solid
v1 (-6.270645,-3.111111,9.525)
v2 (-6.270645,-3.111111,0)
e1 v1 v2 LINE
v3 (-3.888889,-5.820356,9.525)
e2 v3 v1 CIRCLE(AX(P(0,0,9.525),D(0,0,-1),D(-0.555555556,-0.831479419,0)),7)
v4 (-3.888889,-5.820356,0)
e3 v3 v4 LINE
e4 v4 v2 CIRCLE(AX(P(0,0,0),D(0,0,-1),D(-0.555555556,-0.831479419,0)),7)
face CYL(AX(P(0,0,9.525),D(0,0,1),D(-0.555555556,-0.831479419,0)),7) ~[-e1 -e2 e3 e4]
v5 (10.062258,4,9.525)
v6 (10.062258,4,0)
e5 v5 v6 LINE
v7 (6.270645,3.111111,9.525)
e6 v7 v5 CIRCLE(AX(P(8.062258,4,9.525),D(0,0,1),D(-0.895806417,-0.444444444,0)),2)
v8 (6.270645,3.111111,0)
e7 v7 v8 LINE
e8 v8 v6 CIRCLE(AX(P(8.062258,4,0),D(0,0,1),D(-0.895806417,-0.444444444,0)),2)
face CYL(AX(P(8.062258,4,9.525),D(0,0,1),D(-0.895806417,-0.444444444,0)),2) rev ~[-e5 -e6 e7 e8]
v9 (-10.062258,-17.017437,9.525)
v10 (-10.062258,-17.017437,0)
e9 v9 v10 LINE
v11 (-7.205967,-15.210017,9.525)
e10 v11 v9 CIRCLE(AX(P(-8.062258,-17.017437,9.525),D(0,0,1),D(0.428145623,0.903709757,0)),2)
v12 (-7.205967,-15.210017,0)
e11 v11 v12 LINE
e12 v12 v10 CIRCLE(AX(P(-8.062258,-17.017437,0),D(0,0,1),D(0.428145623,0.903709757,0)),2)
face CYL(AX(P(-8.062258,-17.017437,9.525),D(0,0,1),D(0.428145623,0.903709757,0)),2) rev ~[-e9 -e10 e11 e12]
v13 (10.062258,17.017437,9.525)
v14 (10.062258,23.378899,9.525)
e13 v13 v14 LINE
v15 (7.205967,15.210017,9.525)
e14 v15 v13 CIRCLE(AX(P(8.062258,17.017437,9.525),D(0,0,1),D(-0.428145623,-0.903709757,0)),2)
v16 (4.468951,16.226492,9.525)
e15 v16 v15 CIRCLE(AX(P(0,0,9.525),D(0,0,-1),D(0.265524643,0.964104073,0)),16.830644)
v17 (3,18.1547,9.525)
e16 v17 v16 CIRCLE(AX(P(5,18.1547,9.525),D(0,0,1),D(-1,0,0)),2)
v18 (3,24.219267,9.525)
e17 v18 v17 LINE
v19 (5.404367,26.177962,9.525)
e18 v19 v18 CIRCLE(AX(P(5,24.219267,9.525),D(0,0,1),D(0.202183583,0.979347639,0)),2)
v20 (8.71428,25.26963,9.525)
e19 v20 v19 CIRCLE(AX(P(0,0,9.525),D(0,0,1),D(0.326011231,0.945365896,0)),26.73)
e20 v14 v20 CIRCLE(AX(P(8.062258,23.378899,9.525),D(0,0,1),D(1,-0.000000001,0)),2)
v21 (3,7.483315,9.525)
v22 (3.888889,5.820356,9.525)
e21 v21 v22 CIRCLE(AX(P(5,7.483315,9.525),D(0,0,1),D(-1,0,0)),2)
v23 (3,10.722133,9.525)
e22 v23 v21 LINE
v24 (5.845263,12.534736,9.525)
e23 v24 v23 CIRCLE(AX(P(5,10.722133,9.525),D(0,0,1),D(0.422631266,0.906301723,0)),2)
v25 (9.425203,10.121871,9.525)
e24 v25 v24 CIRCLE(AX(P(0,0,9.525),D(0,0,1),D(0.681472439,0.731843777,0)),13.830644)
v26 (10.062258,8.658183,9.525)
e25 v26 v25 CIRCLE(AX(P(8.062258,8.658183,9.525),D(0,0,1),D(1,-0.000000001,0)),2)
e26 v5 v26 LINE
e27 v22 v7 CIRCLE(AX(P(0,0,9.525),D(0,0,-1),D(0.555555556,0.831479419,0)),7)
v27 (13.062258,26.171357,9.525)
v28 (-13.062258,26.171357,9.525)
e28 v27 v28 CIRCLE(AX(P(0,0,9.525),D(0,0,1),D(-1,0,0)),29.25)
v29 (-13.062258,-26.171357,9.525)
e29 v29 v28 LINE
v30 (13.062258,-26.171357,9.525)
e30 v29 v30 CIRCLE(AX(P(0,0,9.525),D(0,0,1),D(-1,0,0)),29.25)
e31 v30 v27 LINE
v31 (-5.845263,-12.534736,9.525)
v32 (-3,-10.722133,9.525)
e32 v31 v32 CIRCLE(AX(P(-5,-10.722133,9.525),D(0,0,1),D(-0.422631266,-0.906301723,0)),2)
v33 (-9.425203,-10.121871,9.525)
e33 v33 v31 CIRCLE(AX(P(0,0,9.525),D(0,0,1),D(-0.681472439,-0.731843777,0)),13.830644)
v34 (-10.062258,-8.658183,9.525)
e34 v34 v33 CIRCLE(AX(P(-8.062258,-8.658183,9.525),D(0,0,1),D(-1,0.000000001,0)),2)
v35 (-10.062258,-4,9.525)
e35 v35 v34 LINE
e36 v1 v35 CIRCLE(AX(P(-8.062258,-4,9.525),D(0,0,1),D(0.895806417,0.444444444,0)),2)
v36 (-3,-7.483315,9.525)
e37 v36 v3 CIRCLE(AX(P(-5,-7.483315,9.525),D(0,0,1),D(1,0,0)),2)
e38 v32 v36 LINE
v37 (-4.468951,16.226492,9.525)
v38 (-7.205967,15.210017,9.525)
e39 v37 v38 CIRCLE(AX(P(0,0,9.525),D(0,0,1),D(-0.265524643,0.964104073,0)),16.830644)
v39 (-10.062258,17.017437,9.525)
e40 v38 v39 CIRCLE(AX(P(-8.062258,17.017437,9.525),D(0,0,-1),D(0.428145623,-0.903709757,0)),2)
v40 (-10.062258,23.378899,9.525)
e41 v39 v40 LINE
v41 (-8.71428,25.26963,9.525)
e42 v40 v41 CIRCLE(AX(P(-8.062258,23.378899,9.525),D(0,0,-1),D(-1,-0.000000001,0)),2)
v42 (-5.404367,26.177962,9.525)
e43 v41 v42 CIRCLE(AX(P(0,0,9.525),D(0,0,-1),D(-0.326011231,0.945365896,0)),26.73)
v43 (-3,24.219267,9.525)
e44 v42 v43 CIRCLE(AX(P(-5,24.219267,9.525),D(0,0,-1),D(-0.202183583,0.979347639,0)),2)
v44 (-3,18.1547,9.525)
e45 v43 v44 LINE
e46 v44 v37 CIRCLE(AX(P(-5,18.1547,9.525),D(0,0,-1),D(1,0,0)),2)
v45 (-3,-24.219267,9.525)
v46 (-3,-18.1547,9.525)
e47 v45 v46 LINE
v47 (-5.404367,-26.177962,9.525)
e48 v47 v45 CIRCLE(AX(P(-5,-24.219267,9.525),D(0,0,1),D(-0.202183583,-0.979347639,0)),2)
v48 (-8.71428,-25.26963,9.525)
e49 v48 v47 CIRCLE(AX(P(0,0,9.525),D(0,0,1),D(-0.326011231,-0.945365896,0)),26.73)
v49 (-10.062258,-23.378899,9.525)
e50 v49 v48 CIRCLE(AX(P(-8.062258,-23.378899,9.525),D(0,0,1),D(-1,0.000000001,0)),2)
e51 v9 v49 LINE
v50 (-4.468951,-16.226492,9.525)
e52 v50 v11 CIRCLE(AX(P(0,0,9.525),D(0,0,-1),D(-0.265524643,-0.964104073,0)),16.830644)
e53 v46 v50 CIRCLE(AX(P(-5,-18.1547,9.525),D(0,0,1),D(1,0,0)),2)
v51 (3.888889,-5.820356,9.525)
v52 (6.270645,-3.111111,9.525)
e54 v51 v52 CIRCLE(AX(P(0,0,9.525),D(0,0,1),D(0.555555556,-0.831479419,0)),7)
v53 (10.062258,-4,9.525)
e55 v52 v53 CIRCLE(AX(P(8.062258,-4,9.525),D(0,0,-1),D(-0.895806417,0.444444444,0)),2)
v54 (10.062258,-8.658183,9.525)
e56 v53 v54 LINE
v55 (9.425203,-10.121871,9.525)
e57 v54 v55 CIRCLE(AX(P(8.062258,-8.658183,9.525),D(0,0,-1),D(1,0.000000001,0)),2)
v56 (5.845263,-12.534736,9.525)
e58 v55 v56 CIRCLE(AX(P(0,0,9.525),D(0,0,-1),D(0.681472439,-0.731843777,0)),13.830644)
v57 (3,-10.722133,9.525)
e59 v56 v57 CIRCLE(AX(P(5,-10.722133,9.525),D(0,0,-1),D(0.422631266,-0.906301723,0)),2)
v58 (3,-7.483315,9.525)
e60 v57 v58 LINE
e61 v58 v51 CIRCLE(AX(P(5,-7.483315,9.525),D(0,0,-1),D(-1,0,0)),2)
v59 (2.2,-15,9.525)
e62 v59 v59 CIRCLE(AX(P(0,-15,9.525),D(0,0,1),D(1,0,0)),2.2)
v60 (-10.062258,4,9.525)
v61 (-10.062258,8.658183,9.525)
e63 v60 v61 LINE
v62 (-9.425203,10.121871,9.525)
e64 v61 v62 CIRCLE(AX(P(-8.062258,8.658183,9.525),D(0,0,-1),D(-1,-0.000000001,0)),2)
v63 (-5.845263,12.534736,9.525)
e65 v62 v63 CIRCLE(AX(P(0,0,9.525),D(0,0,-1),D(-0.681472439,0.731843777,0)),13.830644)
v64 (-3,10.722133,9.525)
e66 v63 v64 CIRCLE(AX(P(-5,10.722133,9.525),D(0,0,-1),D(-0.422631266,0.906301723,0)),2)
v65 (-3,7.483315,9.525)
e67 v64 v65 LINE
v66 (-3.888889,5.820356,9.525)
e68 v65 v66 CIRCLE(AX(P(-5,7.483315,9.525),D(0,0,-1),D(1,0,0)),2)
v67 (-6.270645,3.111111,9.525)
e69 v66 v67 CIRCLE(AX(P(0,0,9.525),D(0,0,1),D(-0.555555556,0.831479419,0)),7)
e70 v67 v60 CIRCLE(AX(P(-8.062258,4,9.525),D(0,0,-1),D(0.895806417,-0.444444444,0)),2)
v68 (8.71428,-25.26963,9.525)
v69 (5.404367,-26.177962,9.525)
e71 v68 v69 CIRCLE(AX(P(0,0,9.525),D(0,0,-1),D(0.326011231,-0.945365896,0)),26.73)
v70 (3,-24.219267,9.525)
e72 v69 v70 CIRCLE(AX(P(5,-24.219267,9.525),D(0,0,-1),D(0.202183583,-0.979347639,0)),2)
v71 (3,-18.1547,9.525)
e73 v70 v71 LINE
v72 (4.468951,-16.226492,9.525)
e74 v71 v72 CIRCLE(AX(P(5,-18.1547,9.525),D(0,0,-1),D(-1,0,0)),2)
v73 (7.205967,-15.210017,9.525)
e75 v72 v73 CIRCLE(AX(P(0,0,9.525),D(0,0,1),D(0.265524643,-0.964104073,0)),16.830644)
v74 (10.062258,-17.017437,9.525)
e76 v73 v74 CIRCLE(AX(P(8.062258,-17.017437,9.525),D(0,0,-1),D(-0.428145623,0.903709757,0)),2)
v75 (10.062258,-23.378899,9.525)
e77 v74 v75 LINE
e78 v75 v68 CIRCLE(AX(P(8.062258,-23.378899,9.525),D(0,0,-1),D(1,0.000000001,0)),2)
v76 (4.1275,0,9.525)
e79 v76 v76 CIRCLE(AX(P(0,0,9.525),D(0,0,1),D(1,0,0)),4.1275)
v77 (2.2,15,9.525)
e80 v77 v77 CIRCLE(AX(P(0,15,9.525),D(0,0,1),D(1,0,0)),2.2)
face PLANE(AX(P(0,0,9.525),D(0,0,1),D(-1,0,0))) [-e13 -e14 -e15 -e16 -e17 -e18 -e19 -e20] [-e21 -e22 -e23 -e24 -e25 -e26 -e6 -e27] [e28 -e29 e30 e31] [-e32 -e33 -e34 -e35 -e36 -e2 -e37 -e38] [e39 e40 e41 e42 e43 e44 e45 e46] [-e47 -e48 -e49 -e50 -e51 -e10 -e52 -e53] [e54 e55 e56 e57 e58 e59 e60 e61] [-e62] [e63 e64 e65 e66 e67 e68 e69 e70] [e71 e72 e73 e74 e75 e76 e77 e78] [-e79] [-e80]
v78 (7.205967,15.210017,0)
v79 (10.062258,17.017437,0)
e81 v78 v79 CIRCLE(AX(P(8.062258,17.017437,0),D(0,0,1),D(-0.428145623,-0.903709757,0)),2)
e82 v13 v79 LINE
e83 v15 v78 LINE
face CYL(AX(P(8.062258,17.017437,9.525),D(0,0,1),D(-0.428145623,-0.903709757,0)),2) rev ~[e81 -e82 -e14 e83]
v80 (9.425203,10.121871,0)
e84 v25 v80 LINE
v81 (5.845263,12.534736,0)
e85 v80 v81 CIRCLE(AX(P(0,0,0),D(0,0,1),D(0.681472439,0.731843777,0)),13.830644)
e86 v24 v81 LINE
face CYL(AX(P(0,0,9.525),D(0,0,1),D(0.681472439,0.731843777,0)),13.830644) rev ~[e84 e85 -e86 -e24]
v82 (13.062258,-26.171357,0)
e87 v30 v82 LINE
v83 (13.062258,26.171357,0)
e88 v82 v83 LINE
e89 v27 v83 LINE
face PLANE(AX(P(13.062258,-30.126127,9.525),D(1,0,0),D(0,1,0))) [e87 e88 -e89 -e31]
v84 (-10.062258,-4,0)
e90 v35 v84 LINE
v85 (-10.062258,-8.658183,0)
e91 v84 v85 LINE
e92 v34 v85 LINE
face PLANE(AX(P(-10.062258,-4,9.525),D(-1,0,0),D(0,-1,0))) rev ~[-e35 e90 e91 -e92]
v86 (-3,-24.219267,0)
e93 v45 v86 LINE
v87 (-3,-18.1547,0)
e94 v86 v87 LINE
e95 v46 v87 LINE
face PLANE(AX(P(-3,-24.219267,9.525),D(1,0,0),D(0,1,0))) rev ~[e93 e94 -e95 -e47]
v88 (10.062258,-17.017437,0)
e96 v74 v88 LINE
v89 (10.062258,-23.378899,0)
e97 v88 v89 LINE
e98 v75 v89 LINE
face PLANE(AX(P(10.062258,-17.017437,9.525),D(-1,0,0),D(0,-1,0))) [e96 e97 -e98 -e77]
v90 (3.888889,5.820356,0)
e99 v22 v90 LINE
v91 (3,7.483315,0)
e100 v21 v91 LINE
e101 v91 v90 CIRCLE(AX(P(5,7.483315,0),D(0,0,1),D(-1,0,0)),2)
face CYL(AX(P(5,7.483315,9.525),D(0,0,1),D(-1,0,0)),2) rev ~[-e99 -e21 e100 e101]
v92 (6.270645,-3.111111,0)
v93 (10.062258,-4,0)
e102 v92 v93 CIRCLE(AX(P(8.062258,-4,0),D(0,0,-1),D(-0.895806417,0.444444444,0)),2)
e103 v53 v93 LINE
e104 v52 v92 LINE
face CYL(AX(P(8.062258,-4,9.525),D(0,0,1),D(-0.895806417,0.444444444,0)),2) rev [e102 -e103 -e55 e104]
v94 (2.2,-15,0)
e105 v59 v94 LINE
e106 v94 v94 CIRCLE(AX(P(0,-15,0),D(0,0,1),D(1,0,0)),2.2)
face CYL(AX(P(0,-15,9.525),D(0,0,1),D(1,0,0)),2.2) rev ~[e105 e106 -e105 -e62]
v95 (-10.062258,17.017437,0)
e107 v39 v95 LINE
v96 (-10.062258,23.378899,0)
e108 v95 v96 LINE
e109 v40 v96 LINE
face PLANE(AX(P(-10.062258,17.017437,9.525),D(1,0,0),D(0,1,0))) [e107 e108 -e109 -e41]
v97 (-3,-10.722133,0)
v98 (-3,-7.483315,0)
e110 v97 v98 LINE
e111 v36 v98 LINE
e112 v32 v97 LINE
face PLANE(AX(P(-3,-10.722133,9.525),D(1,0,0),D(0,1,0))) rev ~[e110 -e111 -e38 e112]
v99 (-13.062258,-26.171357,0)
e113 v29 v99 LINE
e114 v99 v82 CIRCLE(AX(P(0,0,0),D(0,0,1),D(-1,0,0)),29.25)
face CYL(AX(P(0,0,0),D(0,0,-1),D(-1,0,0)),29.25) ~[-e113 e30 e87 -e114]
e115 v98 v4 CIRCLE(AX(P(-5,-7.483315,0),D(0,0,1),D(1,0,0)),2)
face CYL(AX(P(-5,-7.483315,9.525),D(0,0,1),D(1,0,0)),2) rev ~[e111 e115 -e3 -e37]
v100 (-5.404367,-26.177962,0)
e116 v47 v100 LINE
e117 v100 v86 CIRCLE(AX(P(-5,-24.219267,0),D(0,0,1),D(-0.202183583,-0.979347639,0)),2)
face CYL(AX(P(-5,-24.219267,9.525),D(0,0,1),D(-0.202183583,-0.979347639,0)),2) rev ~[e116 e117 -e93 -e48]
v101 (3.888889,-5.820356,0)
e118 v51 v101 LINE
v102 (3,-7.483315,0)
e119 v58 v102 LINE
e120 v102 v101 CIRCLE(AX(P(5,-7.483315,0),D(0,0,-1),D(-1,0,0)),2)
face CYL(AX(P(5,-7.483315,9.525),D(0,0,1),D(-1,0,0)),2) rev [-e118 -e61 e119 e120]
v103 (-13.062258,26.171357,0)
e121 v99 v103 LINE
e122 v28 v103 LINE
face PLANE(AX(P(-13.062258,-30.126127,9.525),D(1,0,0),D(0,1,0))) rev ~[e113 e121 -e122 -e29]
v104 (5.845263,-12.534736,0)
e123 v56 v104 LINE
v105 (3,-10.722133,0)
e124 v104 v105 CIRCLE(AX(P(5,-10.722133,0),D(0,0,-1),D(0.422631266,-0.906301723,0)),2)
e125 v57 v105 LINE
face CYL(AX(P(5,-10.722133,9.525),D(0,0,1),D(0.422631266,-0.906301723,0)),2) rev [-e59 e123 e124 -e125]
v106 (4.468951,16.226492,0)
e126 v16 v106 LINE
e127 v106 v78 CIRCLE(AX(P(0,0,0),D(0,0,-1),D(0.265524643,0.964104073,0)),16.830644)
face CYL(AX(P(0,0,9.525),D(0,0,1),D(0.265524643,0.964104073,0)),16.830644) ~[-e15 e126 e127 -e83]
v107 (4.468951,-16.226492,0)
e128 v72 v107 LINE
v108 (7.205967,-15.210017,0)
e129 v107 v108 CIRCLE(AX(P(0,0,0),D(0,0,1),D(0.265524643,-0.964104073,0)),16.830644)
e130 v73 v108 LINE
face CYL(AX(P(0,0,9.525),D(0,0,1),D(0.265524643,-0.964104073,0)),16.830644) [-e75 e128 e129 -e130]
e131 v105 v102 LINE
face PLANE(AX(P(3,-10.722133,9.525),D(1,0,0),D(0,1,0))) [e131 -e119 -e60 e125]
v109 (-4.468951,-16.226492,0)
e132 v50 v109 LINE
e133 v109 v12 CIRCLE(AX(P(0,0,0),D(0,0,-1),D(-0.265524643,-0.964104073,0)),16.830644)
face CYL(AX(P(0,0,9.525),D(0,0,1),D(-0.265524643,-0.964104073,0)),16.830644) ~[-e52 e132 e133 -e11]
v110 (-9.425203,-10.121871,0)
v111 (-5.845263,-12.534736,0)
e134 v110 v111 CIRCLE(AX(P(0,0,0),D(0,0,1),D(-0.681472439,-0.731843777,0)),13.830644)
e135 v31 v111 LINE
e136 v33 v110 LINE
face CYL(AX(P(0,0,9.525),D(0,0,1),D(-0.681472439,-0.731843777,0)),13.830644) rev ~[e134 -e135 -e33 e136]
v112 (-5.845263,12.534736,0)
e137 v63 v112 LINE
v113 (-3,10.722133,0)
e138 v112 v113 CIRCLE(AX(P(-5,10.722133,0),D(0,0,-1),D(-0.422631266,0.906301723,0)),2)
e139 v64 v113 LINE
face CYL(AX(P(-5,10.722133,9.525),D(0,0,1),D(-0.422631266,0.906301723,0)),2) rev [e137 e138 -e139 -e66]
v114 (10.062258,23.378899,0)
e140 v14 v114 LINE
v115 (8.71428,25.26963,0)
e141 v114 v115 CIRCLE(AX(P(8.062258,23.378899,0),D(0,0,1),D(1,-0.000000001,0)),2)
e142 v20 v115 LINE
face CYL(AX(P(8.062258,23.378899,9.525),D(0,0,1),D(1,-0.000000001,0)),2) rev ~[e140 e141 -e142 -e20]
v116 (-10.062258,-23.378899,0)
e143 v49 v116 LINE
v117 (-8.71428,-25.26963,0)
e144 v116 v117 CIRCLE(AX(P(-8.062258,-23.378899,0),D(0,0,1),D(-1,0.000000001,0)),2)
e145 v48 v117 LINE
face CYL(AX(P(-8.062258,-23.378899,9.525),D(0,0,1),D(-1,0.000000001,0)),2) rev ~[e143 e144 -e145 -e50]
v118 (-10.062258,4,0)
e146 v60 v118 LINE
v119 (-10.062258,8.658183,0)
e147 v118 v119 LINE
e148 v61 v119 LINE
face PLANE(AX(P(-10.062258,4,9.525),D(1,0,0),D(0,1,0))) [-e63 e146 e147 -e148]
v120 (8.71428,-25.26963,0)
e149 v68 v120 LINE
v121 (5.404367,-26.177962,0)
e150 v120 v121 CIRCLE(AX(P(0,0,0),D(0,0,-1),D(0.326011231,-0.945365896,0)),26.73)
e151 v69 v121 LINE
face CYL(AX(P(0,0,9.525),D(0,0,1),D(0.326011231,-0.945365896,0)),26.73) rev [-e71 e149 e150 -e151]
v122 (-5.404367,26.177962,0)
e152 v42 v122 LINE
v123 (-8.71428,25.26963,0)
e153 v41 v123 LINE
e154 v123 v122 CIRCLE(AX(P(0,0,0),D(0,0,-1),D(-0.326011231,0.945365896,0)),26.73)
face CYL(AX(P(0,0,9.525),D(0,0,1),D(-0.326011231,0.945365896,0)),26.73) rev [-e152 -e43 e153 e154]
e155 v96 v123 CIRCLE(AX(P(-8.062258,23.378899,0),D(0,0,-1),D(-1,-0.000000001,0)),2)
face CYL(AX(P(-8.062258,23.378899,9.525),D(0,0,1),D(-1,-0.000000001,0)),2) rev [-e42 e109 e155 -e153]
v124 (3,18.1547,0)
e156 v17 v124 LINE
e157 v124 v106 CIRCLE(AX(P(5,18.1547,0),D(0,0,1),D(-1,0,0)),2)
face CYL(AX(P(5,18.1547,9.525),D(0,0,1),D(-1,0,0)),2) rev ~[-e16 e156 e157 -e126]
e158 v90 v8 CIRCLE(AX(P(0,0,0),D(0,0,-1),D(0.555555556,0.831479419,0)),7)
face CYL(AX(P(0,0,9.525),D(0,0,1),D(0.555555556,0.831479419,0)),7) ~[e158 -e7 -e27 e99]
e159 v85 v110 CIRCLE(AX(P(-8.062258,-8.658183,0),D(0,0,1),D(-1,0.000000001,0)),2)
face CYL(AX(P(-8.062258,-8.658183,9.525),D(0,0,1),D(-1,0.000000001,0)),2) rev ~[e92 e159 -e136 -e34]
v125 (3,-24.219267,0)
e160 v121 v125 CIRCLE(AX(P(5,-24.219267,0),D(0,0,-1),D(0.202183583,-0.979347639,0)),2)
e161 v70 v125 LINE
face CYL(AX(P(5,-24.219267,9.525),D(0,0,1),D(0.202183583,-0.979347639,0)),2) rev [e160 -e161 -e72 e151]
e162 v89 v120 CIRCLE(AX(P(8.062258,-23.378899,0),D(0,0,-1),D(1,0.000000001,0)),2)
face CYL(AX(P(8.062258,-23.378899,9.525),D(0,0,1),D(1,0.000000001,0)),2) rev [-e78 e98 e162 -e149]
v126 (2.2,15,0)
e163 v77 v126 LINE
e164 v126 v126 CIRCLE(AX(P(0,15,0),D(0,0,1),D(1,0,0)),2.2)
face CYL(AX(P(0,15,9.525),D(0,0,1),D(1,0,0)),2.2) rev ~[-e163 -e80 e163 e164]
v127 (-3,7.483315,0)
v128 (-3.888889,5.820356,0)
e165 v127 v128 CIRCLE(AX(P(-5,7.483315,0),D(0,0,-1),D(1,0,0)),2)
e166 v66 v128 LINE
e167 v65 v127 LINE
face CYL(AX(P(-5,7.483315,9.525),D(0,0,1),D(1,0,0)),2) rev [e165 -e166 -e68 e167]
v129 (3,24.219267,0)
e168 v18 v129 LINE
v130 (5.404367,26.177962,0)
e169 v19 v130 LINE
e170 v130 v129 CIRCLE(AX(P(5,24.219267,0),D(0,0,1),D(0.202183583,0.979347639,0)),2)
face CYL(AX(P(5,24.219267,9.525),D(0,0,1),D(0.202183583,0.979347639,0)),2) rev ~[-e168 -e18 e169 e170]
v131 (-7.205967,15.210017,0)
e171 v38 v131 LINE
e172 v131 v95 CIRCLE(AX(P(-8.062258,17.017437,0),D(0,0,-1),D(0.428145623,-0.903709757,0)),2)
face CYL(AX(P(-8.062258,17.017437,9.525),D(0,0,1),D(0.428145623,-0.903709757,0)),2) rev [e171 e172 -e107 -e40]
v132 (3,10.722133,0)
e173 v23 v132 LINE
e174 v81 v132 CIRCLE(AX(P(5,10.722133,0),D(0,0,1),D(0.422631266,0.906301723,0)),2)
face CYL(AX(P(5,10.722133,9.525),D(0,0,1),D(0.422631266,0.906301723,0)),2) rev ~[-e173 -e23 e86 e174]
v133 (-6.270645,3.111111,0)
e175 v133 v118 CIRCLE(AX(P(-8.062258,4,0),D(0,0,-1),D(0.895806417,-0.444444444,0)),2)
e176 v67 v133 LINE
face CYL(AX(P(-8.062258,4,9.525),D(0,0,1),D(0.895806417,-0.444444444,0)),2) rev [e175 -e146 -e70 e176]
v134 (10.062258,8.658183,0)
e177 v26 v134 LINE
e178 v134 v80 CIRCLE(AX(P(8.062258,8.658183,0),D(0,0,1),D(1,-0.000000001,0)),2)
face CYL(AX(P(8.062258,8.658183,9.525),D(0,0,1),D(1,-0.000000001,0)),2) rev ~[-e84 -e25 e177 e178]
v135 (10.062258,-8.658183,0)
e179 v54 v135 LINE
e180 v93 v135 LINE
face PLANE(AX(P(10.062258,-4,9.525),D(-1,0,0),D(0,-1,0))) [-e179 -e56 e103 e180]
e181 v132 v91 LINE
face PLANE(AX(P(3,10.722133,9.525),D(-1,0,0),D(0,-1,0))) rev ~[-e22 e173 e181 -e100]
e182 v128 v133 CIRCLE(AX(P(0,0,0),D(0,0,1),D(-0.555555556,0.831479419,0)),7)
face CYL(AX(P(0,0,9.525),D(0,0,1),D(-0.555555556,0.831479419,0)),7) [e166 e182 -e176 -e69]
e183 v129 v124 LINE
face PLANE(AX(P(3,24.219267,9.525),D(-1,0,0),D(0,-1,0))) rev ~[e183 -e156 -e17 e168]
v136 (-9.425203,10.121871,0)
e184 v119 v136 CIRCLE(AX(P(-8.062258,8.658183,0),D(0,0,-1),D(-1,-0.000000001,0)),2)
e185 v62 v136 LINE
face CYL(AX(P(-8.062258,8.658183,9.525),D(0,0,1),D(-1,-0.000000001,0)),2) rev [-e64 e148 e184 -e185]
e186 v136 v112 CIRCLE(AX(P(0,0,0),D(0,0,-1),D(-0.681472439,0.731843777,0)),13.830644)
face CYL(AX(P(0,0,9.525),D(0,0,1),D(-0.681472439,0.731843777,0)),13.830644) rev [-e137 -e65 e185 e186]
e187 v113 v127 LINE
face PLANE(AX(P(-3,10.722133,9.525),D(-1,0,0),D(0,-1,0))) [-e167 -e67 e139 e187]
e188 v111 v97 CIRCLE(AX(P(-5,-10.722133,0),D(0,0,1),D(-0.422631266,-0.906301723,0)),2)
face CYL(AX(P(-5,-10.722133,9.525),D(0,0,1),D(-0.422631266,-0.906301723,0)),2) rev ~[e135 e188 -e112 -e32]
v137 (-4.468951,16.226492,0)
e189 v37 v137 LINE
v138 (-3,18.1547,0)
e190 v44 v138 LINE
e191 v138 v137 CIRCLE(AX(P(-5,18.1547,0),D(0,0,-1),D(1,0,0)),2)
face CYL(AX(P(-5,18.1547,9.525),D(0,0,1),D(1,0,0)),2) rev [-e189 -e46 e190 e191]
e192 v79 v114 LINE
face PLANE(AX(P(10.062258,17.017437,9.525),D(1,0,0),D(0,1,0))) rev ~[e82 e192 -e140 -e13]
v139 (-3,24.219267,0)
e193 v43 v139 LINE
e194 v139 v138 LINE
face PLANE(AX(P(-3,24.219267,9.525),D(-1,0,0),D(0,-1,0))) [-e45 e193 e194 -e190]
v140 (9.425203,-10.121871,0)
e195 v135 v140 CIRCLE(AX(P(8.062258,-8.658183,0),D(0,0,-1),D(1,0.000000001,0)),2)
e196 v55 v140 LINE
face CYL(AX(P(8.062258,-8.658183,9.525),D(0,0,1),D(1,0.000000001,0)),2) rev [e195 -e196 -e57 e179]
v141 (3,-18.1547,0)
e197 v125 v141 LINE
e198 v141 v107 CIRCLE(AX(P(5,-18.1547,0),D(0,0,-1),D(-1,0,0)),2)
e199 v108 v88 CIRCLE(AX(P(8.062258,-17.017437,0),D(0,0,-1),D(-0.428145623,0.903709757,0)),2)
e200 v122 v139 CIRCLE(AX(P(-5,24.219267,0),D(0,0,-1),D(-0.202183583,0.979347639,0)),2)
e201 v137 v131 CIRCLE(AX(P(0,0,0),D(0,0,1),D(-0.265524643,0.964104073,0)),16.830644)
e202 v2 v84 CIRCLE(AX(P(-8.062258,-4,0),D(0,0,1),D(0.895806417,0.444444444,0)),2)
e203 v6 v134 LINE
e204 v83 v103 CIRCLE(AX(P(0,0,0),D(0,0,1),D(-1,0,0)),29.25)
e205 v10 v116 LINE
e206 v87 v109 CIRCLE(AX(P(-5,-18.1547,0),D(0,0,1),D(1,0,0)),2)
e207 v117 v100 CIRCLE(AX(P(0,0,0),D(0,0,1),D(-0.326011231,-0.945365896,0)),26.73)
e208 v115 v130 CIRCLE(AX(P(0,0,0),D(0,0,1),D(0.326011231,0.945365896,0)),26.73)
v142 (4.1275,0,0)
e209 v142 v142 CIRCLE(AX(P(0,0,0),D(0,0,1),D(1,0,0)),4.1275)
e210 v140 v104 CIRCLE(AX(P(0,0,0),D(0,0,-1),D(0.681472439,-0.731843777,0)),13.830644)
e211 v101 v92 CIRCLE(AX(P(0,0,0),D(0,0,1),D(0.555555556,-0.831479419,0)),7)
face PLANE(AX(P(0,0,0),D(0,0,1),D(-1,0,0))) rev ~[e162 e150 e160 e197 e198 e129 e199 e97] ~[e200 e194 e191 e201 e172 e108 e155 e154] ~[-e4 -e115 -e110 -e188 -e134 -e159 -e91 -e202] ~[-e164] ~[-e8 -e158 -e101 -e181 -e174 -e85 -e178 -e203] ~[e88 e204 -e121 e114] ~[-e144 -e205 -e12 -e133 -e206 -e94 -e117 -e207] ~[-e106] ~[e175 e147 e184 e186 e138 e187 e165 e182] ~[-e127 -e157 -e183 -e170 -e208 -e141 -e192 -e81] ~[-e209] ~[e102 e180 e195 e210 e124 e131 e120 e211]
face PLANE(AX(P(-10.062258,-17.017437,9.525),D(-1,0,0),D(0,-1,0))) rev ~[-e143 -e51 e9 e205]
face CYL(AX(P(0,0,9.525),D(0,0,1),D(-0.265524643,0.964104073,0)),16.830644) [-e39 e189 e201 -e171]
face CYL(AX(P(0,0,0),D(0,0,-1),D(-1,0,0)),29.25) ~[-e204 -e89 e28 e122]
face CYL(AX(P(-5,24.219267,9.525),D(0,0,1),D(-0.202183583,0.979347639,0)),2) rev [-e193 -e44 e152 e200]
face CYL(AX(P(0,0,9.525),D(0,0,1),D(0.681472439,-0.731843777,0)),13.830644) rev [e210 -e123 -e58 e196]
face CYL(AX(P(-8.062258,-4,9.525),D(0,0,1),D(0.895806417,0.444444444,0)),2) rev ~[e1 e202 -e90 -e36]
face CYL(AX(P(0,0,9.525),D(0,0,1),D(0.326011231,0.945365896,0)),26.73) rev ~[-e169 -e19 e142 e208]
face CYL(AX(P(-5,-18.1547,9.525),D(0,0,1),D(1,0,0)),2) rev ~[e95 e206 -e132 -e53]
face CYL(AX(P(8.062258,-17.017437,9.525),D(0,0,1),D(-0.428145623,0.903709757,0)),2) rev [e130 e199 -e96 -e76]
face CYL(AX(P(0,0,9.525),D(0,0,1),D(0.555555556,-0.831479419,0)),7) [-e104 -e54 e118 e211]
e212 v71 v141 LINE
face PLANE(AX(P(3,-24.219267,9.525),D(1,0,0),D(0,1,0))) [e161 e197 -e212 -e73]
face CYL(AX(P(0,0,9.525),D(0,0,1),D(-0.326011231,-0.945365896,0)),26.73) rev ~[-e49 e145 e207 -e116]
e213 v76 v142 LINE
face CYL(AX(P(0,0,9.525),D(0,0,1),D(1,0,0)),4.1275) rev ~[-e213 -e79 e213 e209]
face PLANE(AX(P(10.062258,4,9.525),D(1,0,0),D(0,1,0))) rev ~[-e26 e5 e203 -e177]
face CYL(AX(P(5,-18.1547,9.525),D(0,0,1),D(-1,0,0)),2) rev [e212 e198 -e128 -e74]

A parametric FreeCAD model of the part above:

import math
import FreeCAD as App
import Part
import Sketcher
from FreeCAD import Vector
Q = App.Units.Quantity


def add_polygon(sketch, points):
    """Adds a closed chain of lines whose ends are joined by coincident constraints."""
    first, n = sketch.GeometryCount, len(points)
    for a, b in zip(points, points[1:] + points[:1]):
        sketch.addGeometry(Part.LineSegment(App.Vector(*a, 0), App.Vector(*b, 0)), False)
    for i in range(n):
        sketch.addConstraint(Sketcher.Constraint("Coincident", first + i, 2, first + (i + 1) % n, 1))

doc = App.newDocument("Part")
body = doc.addObject("PartDesign::Body", "Body")

sketch1 = doc.addObject("Sketcher::SketchObject", "Sketch")
body.addObject(sketch1)
sketch1.AttachmentSupport = (doc.XY_Plane, [""])
sketch1.MapMode = "FlatFace"
sketch1.addGeometry(Part.Circle(Vector(0, 0, 0), Vector(0, 0, 1), 29.25), False)
sketch1.addConstraint(Sketcher.Constraint("Coincident", 0, 3, -1, 1))
sketch1.addConstraint(Sketcher.Constraint("Diameter", 0, Q("58.5 mm")))
pad1 = doc.addObject("PartDesign::Pad", "Pad")
body.addObject(pad1)
pad1.Profile = sketch1
pad1.Length = 9.525

sketch2 = doc.addObject("Sketcher::SketchObject", "Sketch001")
body.addObject(sketch2)
sketch2.AttachmentSupport = (doc.XY_Plane, [""])
sketch2.MapMode = "FlatFace"
sketch2.AttachmentOffset = App.Placement(Vector(0, 0, 9.525), App.Rotation())
sketch2.addGeometry(Part.LineSegment(Vector(-3, 18.1547, 0), Vector(-3, 24.219267, 0)), False)
sketch2.addGeometry(Part.ArcOfCircle(Part.Circle(Vector(-5, 24.219267, 0), Vector(0, 0, 1), 2), math.radians(0), math.radians(101.664678)), False)
sketch2.addGeometry(Part.ArcOfCircle(Part.Circle(Vector(0, 0, 0), Vector(0, 0, 1), 26.73), math.radians(101.664678), math.radians(109.026851)), False)
sketch2.addGeometry(Part.ArcOfCircle(Part.Circle(Vector(-8.062258, 23.378899, 0), Vector(0, 0, 1), 2), math.radians(109.026851), math.radians(180)), False)
sketch2.addGeometry(Part.LineSegment(Vector(-10.062258, 23.378899, 0), Vector(-10.062258, 17.017437, 0)), False)
sketch2.addGeometry(Part.ArcOfCircle(Part.Circle(Vector(-8.062258, 17.017437, 0), Vector(0, 0, 1), 2), math.radians(180), math.radians(295.349934)), False)
sketch2.addGeometry(Part.ArcOfCircle(Part.Circle(Vector(0, 0, 0), Vector(0, 0, 1), 16.830644), math.radians(105.39813), math.radians(115.349934)), False)
sketch2.addGeometry(Part.ArcOfCircle(Part.Circle(Vector(-5, 18.1547, 0), Vector(0, 0, 1), 2), math.radians(-74.60187), math.radians(0)), False)
sketch2.addGeometry(Part.LineSegment(Vector(-3, 7.483315, 0), Vector(-3, 10.722133, 0)), False)
sketch2.addGeometry(Part.ArcOfCircle(Part.Circle(Vector(-5, 10.722133, 0), Vector(0, 0, 1), 2), math.radians(0), math.radians(115.000822)), False)
sketch2.addGeometry(Part.ArcOfCircle(Part.Circle(Vector(0, 0, 0), Vector(0, 0, 1), 13.830644), math.radians(115.000822), math.radians(132.958812)), False)
sketch2.addGeometry(Part.ArcOfCircle(Part.Circle(Vector(-8.062258, 8.658183, 0), Vector(0, 0, 1), 2), math.radians(132.958812), math.radians(180)), False)
sketch2.addGeometry(Part.LineSegment(Vector(-10.062258, 8.658183, 0), Vector(-10.062258, 4, 0)), False)
sketch2.addGeometry(Part.ArcOfCircle(Part.Circle(Vector(-8.062258, 4, 0), Vector(0, 0, 1), 2), math.radians(180), math.radians(333.6122)), False)
sketch2.addGeometry(Part.ArcOfCircle(Part.Circle(Vector(0, 0, 0), Vector(0, 0, 1), 7), math.radians(123.748989), math.radians(153.6122)), False)
sketch2.addGeometry(Part.ArcOfCircle(Part.Circle(Vector(-5, 7.483315, 0), Vector(0, 0, 1), 2), math.radians(-56.251011), math.radians(0)), False)
sketch2.addGeometry(Part.LineSegment(Vector(3, 10.722133, 0), Vector(3, 7.483315, 0)), False)
sketch2.addGeometry(Part.ArcOfCircle(Part.Circle(Vector(5, 7.483315, 0), Vector(0, 0, 1), 2), math.radians(-180), math.radians(-123.748989)), False)
sketch2.addGeometry(Part.ArcOfCircle(Part.Circle(Vector(0, 0, 0), Vector(0, 0, 1), 7), math.radians(26.3878), math.radians(56.251011)), False)
sketch2.addGeometry(Part.ArcOfCircle(Part.Circle(Vector(8.062258, 4, 0), Vector(0, 0, 1), 2), math.radians(-153.6122), math.radians(0)), False)
sketch2.addGeometry(Part.LineSegment(Vector(10.062258, 4, 0), Vector(10.062258, 8.658183, 0)), False)
sketch2.addGeometry(Part.ArcOfCircle(Part.Circle(Vector(8.062258, 8.658183, 0), Vector(0, 0, 1), 2), math.radians(0), math.radians(47.041188)), False)
sketch2.addGeometry(Part.ArcOfCircle(Part.Circle(Vector(0, 0, 0), Vector(0, 0, 1), 13.830644), math.radians(47.041188), math.radians(64.999178)), False)
sketch2.addGeometry(Part.ArcOfCircle(Part.Circle(Vector(5, 10.722133, 0), Vector(0, 0, 1), 2), math.radians(64.999178), math.radians(180)), False)
sketch2.addGeometry(Part.LineSegment(Vector(3, 24.219267, 0), Vector(3, 18.1547, 0)), False)
sketch2.addGeometry(Part.ArcOfCircle(Part.Circle(Vector(5, 18.1547, 0), Vector(0, 0, 1), 2), math.radians(180), math.radians(254.60187)), False)
sketch2.addGeometry(Part.ArcOfCircle(Part.Circle(Vector(0, 0, 0), Vector(0, 0, 1), 16.830644), math.radians(64.650066), math.radians(74.60187)), False)
sketch2.addGeometry(Part.ArcOfCircle(Part.Circle(Vector(8.062258, 17.017437, 0), Vector(0, 0, 1), 2), math.radians(-115.349934), math.radians(0)), False)
sketch2.addGeometry(Part.LineSegment(Vector(10.062258, 17.017437, 0), Vector(10.062258, 23.378899, 0)), False)
sketch2.addGeometry(Part.ArcOfCircle(Part.Circle(Vector(8.062258, 23.378899, 0), Vector(0, 0, 1), 2), math.radians(0), math.radians(70.973149)), False)
sketch2.addGeometry(Part.ArcOfCircle(Part.Circle(Vector(0, 0, 0), Vector(0, 0, 1), 26.73), math.radians(70.973149), math.radians(78.335322)), False)
sketch2.addGeometry(Part.ArcOfCircle(Part.Circle(Vector(5, 24.219267, 0), Vector(0, 0, 1), 2), math.radians(78.335322), math.radians(180)), False)
sketch2.addGeometry(Part.LineSegment(Vector(-3, -10.722133, 0), Vector(-3, -7.483315, 0)), False)
sketch2.addGeometry(Part.ArcOfCircle(Part.Circle(Vector(-5, -7.483315, 0), Vector(0, 0, 1), 2), math.radians(0), math.radians(56.251011)), False)
sketch2.addGeometry(Part.ArcOfCircle(Part.Circle(Vector(0, 0, 0), Vector(0, 0, 1), 7), math.radians(-153.6122), math.radians(-123.748989)), False)
sketch2.addGeometry(Part.ArcOfCircle(Part.Circle(Vector(-8.062258, -4, 0), Vector(0, 0, 1), 2), math.radians(26.3878), math.radians(180)), False)
sketch2.addGeometry(Part.LineSegment(Vector(-10.062258, -4, 0), Vector(-10.062258, -8.658183, 0)), False)
sketch2.addGeometry(Part.ArcOfCircle(Part.Circle(Vector(-8.062258, -8.658183, 0), Vector(0, 0, 1), 2), math.radians(180), math.radians(227.041188)), False)
sketch2.addGeometry(Part.ArcOfCircle(Part.Circle(Vector(0, 0, 0), Vector(0, 0, 1), 13.830644), math.radians(-132.958812), math.radians(-115.000822)), False)
sketch2.addGeometry(Part.ArcOfCircle(Part.Circle(Vector(-5, -10.722133, 0), Vector(0, 0, 1), 2), math.radians(-115.000822), math.radians(0)), False)
sketch2.addGeometry(Part.LineSegment(Vector(3, -7.483315, 0), Vector(3, -10.722133, 0)), False)
sketch2.addGeometry(Part.ArcOfCircle(Part.Circle(Vector(5, -10.722133, 0), Vector(0, 0, 1), 2), math.radians(180), math.radians(295.000822)), False)
sketch2.addGeometry(Part.ArcOfCircle(Part.Circle(Vector(0, 0, 0), Vector(0, 0, 1), 13.830644), math.radians(-64.999178), math.radians(-47.041188)), False)
sketch2.addGeometry(Part.ArcOfCircle(Part.Circle(Vector(8.062258, -8.658183, 0), Vector(0, 0, 1), 2), math.radians(-47.041188), math.radians(0)), False)
sketch2.addGeometry(Part.LineSegment(Vector(10.062258, -8.658183, 0), Vector(10.062258, -4, 0)), False)
sketch2.addGeometry(Part.ArcOfCircle(Part.Circle(Vector(8.062258, -4, 0), Vector(0, 0, 1), 2), math.radians(0), math.radians(153.6122)), False)
sketch2.addGeometry(Part.ArcOfCircle(Part.Circle(Vector(0, 0, 0), Vector(0, 0, 1), 7), math.radians(-56.251011), math.radians(-26.3878)), False)
sketch2.addGeometry(Part.ArcOfCircle(Part.Circle(Vector(5, -7.483315, 0), Vector(0, 0, 1), 2), math.radians(123.748989), math.radians(180)), False)
sketch2.addGeometry(Part.LineSegment(Vector(3, -18.1547, 0), Vector(3, -24.219267, 0)), False)
sketch2.addGeometry(Part.ArcOfCircle(Part.Circle(Vector(5, -24.219267, 0), Vector(0, 0, 1), 2), math.radians(180), math.radians(281.664678)), False)
sketch2.addGeometry(Part.ArcOfCircle(Part.Circle(Vector(0, 0, 0), Vector(0, 0, 1), 26.73), math.radians(-78.335322), math.radians(-70.973149)), False)
sketch2.addGeometry(Part.ArcOfCircle(Part.Circle(Vector(8.062258, -23.378899, 0), Vector(0, 0, 1), 2), math.radians(-70.973149), math.radians(0)), False)
sketch2.addGeometry(Part.LineSegment(Vector(10.062258, -23.378899, 0), Vector(10.062258, -17.017437, 0)), False)
sketch2.addGeometry(Part.ArcOfCircle(Part.Circle(Vector(8.062258, -17.017437, 0), Vector(0, 0, 1), 2), math.radians(0), math.radians(115.349934)), False)
sketch2.addGeometry(Part.ArcOfCircle(Part.Circle(Vector(0, 0, 0), Vector(0, 0, 1), 16.830644), math.radians(-74.60187), math.radians(-64.650066)), False)
sketch2.addGeometry(Part.ArcOfCircle(Part.Circle(Vector(5, -18.1547, 0), Vector(0, 0, 1), 2), math.radians(105.39813), math.radians(180)), False)
sketch2.addGeometry(Part.LineSegment(Vector(-3, -24.219267, 0), Vector(-3, -18.1547, 0)), False)
sketch2.addGeometry(Part.ArcOfCircle(Part.Circle(Vector(-5, -18.1547, 0), Vector(0, 0, 1), 2), math.radians(0), math.radians(74.60187)), False)
sketch2.addGeometry(Part.ArcOfCircle(Part.Circle(Vector(0, 0, 0), Vector(0, 0, 1), 16.830644), math.radians(-115.349934), math.radians(-105.39813)), False)
sketch2.addGeometry(Part.ArcOfCircle(Part.Circle(Vector(-8.062258, -17.017437, 0), Vector(0, 0, 1), 2), math.radians(64.650066), math.radians(180)), False)
sketch2.addGeometry(Part.LineSegment(Vector(-10.062258, -17.017437, 0), Vector(-10.062258, -23.378899, 0)), False)
sketch2.addGeometry(Part.ArcOfCircle(Part.Circle(Vector(-8.062258, -23.378899, 0), Vector(0, 0, 1), 2), math.radians(180), math.radians(250.973149)), False)
sketch2.addGeometry(Part.ArcOfCircle(Part.Circle(Vector(0, 0, 0), Vector(0, 0, 1), 26.73), math.radians(-109.026851), math.radians(-101.664678)), False)
sketch2.addGeometry(Part.ArcOfCircle(Part.Circle(Vector(-5, -24.219267, 0), Vector(0, 0, 1), 2), math.radians(-101.664678), math.radians(0)), False)
sketch2.addConstraint(Sketcher.Constraint("Tangent", 0, 2, 1, 1))
sketch2.addConstraint(Sketcher.Constraint("Tangent", 1, 2, 2, 1))
sketch2.addConstraint(Sketcher.Constraint("Tangent", 2, 2, 3, 1))
sketch2.addConstraint(Sketcher.Constraint("Tangent", 3, 2, 4, 1))
sketch2.addConstraint(Sketcher.Constraint("Tangent", 4, 2, 5, 1))
sketch2.addConstraint(Sketcher.Constraint("Tangent", 5, 2, 6, 2))
sketch2.addConstraint(Sketcher.Constraint("Tangent", 6, 1, 7, 1))
sketch2.addConstraint(Sketcher.Constraint("Tangent", 7, 2, 0, 1))
sketch2.addConstraint(Sketcher.Constraint("Tangent", 8, 2, 9, 1))
sketch2.addConstraint(Sketcher.Constraint("Tangent", 9, 2, 10, 1))
sketch2.addConstraint(Sketcher.Constraint("Tangent", 10, 2, 11, 1))
sketch2.addConstraint(Sketcher.Constraint("Tangent", 11, 2, 12, 1))
sketch2.addConstraint(Sketcher.Constraint("Tangent", 12, 2, 13, 1))
sketch2.addConstraint(Sketcher.Constraint("Tangent", 13, 2, 14, 2))
sketch2.addConstraint(Sketcher.Constraint("Tangent", 14, 1, 15, 1))
sketch2.addConstraint(Sketcher.Constraint("Tangent", 15, 2, 8, 1))
sketch2.addConstraint(Sketcher.Constraint("Tangent", 16, 2, 17, 1))
sketch2.addConstraint(Sketcher.Constraint("Tangent", 17, 2, 18, 2))
sketch2.addConstraint(Sketcher.Constraint("Tangent", 18, 1, 19, 1))
sketch2.addConstraint(Sketcher.Constraint("Tangent", 19, 2, 20, 1))
sketch2.addConstraint(Sketcher.Constraint("Tangent", 20, 2, 21, 1))
sketch2.addConstraint(Sketcher.Constraint("Tangent", 21, 2, 22, 1))
sketch2.addConstraint(Sketcher.Constraint("Tangent", 22, 2, 23, 1))
sketch2.addConstraint(Sketcher.Constraint("Tangent", 23, 2, 16, 1))
sketch2.addConstraint(Sketcher.Constraint("Tangent", 24, 2, 25, 1))
sketch2.addConstraint(Sketcher.Constraint("Tangent", 25, 2, 26, 2))
sketch2.addConstraint(Sketcher.Constraint("Tangent", 26, 1, 27, 1))
sketch2.addConstraint(Sketcher.Constraint("Tangent", 27, 2, 28, 1))
sketch2.addConstraint(Sketcher.Constraint("Tangent", 28, 2, 29, 1))
sketch2.addConstraint(Sketcher.Constraint("Tangent", 29, 2, 30, 1))
sketch2.addConstraint(Sketcher.Constraint("Tangent", 30, 2, 31, 1))
sketch2.addConstraint(Sketcher.Constraint("Tangent", 31, 2, 24, 1))
sketch2.addConstraint(Sketcher.Constraint("Tangent", 32, 2, 33, 1))
sketch2.addConstraint(Sketcher.Constraint("Tangent", 33, 2, 34, 2))
sketch2.addConstraint(Sketcher.Constraint("Tangent", 34, 1, 35, 1))
sketch2.addConstraint(Sketcher.Constraint("Tangent", 35, 2, 36, 1))
sketch2.addConstraint(Sketcher.Constraint("Tangent", 36, 2, 37, 1))
sketch2.addConstraint(Sketcher.Constraint("Tangent", 37, 2, 38, 1))
sketch2.addConstraint(Sketcher.Constraint("Tangent", 38, 2, 39, 1))
sketch2.addConstraint(Sketcher.Constraint("Tangent", 39, 2, 32, 1))
sketch2.addConstraint(Sketcher.Constraint("Tangent", 40, 2, 41, 1))
sketch2.addConstraint(Sketcher.Constraint("Tangent", 41, 2, 42, 1))
sketch2.addConstraint(Sketcher.Constraint("Tangent", 42, 2, 43, 1))
sketch2.addConstraint(Sketcher.Constraint("Tangent", 43, 2, 44, 1))
sketch2.addConstraint(Sketcher.Constraint("Tangent", 44, 2, 45, 1))
sketch2.addConstraint(Sketcher.Constraint("Tangent", 45, 2, 46, 2))
sketch2.addConstraint(Sketcher.Constraint("Tangent", 46, 1, 47, 1))
sketch2.addConstraint(Sketcher.Constraint("Tangent", 47, 2, 40, 1))
sketch2.addConstraint(Sketcher.Constraint("Tangent", 48, 2, 49, 1))
sketch2.addConstraint(Sketcher.Constraint("Tangent", 49, 2, 50, 1))
sketch2.addConstraint(Sketcher.Constraint("Tangent", 50, 2, 51, 1))
sketch2.addConstraint(Sketcher.Constraint("Tangent", 51, 2, 52, 1))
sketch2.addConstraint(Sketcher.Constraint("Tangent", 52, 2, 53, 1))
sketch2.addConstraint(Sketcher.Constraint("Tangent", 53, 2, 54, 2))
sketch2.addConstraint(Sketcher.Constraint("Tangent", 54, 1, 55, 1))
sketch2.addConstraint(Sketcher.Constraint("Tangent", 55, 2, 48, 1))
sketch2.addConstraint(Sketcher.Constraint("Tangent", 56, 2, 57, 1))
sketch2.addConstraint(Sketcher.Constraint("Tangent", 57, 2, 58, 2))
sketch2.addConstraint(Sketcher.Constraint("Tangent", 58, 1, 59, 1))
sketch2.addConstraint(Sketcher.Constraint("Tangent", 59, 2, 60, 1))
sketch2.addConstraint(Sketcher.Constraint("Tangent", 60, 2, 61, 1))
sketch2.addConstraint(Sketcher.Constraint("Tangent", 61, 2, 62, 1))
sketch2.addConstraint(Sketcher.Constraint("Tangent", 62, 2, 63, 1))
sketch2.addConstraint(Sketcher.Constraint("Tangent", 63, 2, 56, 1))
sketch2.addConstraint(Sketcher.Constraint("Vertical", 0))
sketch2.addConstraint(Sketcher.Constraint("Vertical", 4))
sketch2.addConstraint(Sketcher.Constraint("Vertical", 8))
sketch2.addConstraint(Sketcher.Constraint("Vertical", 12))
sketch2.addConstraint(Sketcher.Constraint("Vertical", 16))
sketch2.addConstraint(Sketcher.Constraint("Vertical", 20))
sketch2.addConstraint(Sketcher.Constraint("Vertical", 24))
sketch2.addConstraint(Sketcher.Constraint("Vertical", 28))
sketch2.addConstraint(Sketcher.Constraint("Vertical", 32))
sketch2.addConstraint(Sketcher.Constraint("Vertical", 36))
sketch2.addConstraint(Sketcher.Constraint("Vertical", 40))
sketch2.addConstraint(Sketcher.Constraint("Vertical", 44))
sketch2.addConstraint(Sketcher.Constraint("Vertical", 48))
sketch2.addConstraint(Sketcher.Constraint("Vertical", 52))
sketch2.addConstraint(Sketcher.Constraint("Vertical", 56))
sketch2.addConstraint(Sketcher.Constraint("Vertical", 60))
sketch2.addConstraint(Sketcher.Constraint("Coincident", 2, 3, -1, 1))
sketch2.addConstraint(Sketcher.Constraint("Coincident", 6, 3, -1, 1))
sketch2.addConstraint(Sketcher.Constraint("Coincident", 10, 3, -1, 1))
sketch2.addConstraint(Sketcher.Constraint("Coincident", 14, 3, -1, 1))
sketch2.addConstraint(Sketcher.Constraint("Coincident", 18, 3, -1, 1))
sketch2.addConstraint(Sketcher.Constraint("Coincident", 22, 3, -1, 1))
sketch2.addConstraint(Sketcher.Constraint("Coincident", 26, 3, -1, 1))
sketch2.addConstraint(Sketcher.Constraint("Coincident", 30, 3, -1, 1))
sketch2.addConstraint(Sketcher.Constraint("Coincident", 34, 3, -1, 1))
sketch2.addConstraint(Sketcher.Constraint("Coincident", 38, 3, -1, 1))
sketch2.addConstraint(Sketcher.Constraint("Coincident", 42, 3, -1, 1))
sketch2.addConstraint(Sketcher.Constraint("Coincident", 46, 3, -1, 1))
sketch2.addConstraint(Sketcher.Constraint("Coincident", 50, 3, -1, 1))
sketch2.addConstraint(Sketcher.Constraint("Coincident", 54, 3, -1, 1))
sketch2.addConstraint(Sketcher.Constraint("Coincident", 58, 3, -1, 1))
sketch2.addConstraint(Sketcher.Constraint("Coincident", 62, 3, -1, 1))
sketch2.addConstraint(Sketcher.Constraint("Equal", 1, 3))
sketch2.addConstraint(Sketcher.Constraint("Equal", 3, 5))
sketch2.addConstraint(Sketcher.Constraint("Equal", 5, 7))
sketch2.addConstraint(Sketcher.Constraint("Equal", 7, 9))
sketch2.addConstraint(Sketcher.Constraint("Equal", 9, 11))
sketch2.addConstraint(Sketcher.Constraint("Equal", 11, 13))
sketch2.addConstraint(Sketcher.Constraint("Equal", 13, 15))
sketch2.addConstraint(Sketcher.Constraint("Equal", 15, 17))
sketch2.addConstraint(Sketcher.Constraint("Equal", 14, 18))
sketch2.addConstraint(Sketcher.Constraint("Equal", 17, 19))
sketch2.addConstraint(Sketcher.Constraint("Equal", 19, 21))
sketch2.addConstraint(Sketcher.Constraint("Equal", 10, 22))
sketch2.addConstraint(Sketcher.Constraint("Equal", 21, 23))
sketch2.addConstraint(Sketcher.Constraint("Equal", 23, 25))
sketch2.addConstraint(Sketcher.Constraint("Equal", 6, 26))
sketch2.addConstraint(Sketcher.Constraint("Equal", 25, 27))
sketch2.addConstraint(Sketcher.Constraint("Equal", 27, 29))
sketch2.addConstraint(Sketcher.Constraint("Equal", 2, 30))
sketch2.addConstraint(Sketcher.Constraint("Equal", 29, 31))
sketch2.addConstraint(Sketcher.Constraint("Equal", 31, 33))
sketch2.addConstraint(Sketcher.Constraint("Equal", 18, 34))
sketch2.addConstraint(Sketcher.Constraint("Equal", 33, 35))
sketch2.addConstraint(Sketcher.Constraint("Equal", 35, 37))
sketch2.addConstraint(Sketcher.Constraint("Equal", 22, 38))
sketch2.addConstraint(Sketcher.Constraint("Equal", 37, 39))
sketch2.addConstraint(Sketcher.Constraint("Equal", 39, 41))
sketch2.addConstraint(Sketcher.Constraint("Equal", 38, 42))
sketch2.addConstraint(Sketcher.Constraint("Equal", 41, 43))
sketch2.addConstraint(Sketcher.Constraint("Equal", 43, 45))
sketch2.addConstraint(Sketcher.Constraint("Equal", 34, 46))
sketch2.addConstraint(Sketcher.Constraint("Equal", 45, 47))
sketch2.addConstraint(Sketcher.Constraint("Equal", 47, 49))
sketch2.addConstraint(Sketcher.Constraint("Equal", 30, 50))
sketch2.addConstraint(Sketcher.Constraint("Equal", 49, 51))
sketch2.addConstraint(Sketcher.Constraint("Equal", 51, 53))
sketch2.addConstraint(Sketcher.Constraint("Equal", 26, 54))
sketch2.addConstraint(Sketcher.Constraint("Equal", 53, 55))
sketch2.addConstraint(Sketcher.Constraint("Equal", 55, 57))
sketch2.addConstraint(Sketcher.Constraint("Equal", 54, 58))
sketch2.addConstraint(Sketcher.Constraint("Equal", 57, 59))
sketch2.addConstraint(Sketcher.Constraint("Equal", 59, 61))
sketch2.addConstraint(Sketcher.Constraint("Equal", 50, 62))
sketch2.addConstraint(Sketcher.Constraint("Equal", 61, 63))
sketch2.addConstraint(Sketcher.Constraint("Horizontal", 15, 3, 17, 3))
sketch2.addConstraint(Sketcher.Constraint("Horizontal", 13, 3, 19, 3))
sketch2.addConstraint(Sketcher.Constraint("Horizontal", 7, 3, 25, 3))
sketch2.addConstraint(Sketcher.Constraint("Horizontal", 5, 3, 27, 3))
sketch2.addConstraint(Sketcher.Constraint("Horizontal", 39, 3, 41, 3))
sketch2.addConstraint(Sketcher.Constraint("Horizontal", 37, 3, 43, 3))
sketch2.addConstraint(Sketcher.Constraint("Horizontal", 55, 3, 57, 3))
sketch2.addConstraint(Sketcher.Constraint("Horizontal", 53, 3, 59, 3))
sketch2.addConstraint(Sketcher.Constraint("Vertical", 7, 3, 9, 3))
sketch2.addConstraint(Sketcher.Constraint("Vertical", 5, 3, 11, 3))
sketch2.addConstraint(Sketcher.Constraint("Vertical", 15, 3, 33, 3))
sketch2.addConstraint(Sketcher.Constraint("Vertical", 13, 3, 35, 3))
sketch2.addConstraint(Sketcher.Constraint("Vertical", 47, 3, 49, 3))
sketch2.addConstraint(Sketcher.Constraint("Vertical", 45, 3, 51, 3))
sketch2.addConstraint(Sketcher.Constraint("Radius", 1, Q("2 mm")))
sketch2.addConstraint(Sketcher.Constraint("Radius", 14, Q("7 mm")))
sketch2.addConstraint(Sketcher.Constraint("Radius", 2, Q("26.73 mm")))
sketch2.addConstraint(Sketcher.Constraint("DistanceX", 1, 3, -1, 1, Q("5 mm")))
sketch2.addConstraint(Sketcher.Constraint("DistanceY", -1, 1, 13, 3, Q("4 mm")))
sketch2.addConstraint(Sketcher.Constraint("Radius", 6, Q("16.830644 mm")))
sketch2.addConstraint(Sketcher.Constraint("Radius", 10, Q("13.830644 mm")))
pocket1 = doc.addObject("PartDesign::Pocket", "Pocket")
body.addObject(pocket1)
pocket1.Profile = sketch2
pocket1.Length = 9.525

sketch3 = doc.addObject("Sketcher::SketchObject", "Sketch002")
body.addObject(sketch3)
sketch3.AttachmentSupport = (doc.XY_Plane, [""])
sketch3.MapMode = "FlatFace"
sketch3.AttachmentOffset = App.Placement(Vector(0, 0, 9.525), App.Rotation())
sketch3.addGeometry(Part.Circle(Vector(0, 15, 0), Vector(0, 0, 1), 2.2), False)
sketch3.addGeometry(Part.Circle(Vector(0, -15, 0), Vector(0, 0, 1), 2.2), False)
sketch3.addConstraint(Sketcher.Constraint("Equal", 0, 1))
sketch3.addConstraint(Sketcher.Constraint("Symmetric", 0, 3, 1, 3, -1, 1))
sketch3.addConstraint(Sketcher.Constraint("PointOnObject", 0, 3, -2))
sketch3.addConstraint(Sketcher.Constraint("Diameter", 0, Q("4.4 mm")))
sketch3.addConstraint(Sketcher.Constraint("DistanceY", -1, 1, 0, 3, Q("15 mm")))
pocket2 = doc.addObject("PartDesign::Pocket", "Pocket001")
body.addObject(pocket2)
pocket2.Profile = sketch3
pocket2.Length = 9.525

sketch4 = doc.addObject("Sketcher::SketchObject", "Sketch003")
body.addObject(sketch4)
sketch4.AttachmentSupport = (doc.XY_Plane, [""])
sketch4.MapMode = "FlatFace"
sketch4.AttachmentOffset = App.Placement(Vector(0, 0, 9.525), App.Rotation())
sketch4.addGeometry(Part.Circle(Vector(0, 0, 0), Vector(0, 0, 1), 4.1275), False)
sketch4.addConstraint(Sketcher.Constraint("Coincident", 0, 3, -1, 1))
sketch4.addConstraint(Sketcher.Constraint("Diameter", 0, Q("8.255 mm")))
pocket3 = doc.addObject("PartDesign::Pocket", "Pocket002")
body.addObject(pocket3)
pocket3.Profile = sketch4
pocket3.Length = 9.525

sketch5 = doc.addObject("Sketcher::SketchObject", "Sketch004")
body.addObject(sketch5)
sketch5.AttachmentSupport = (doc.XY_Plane, [""])
sketch5.MapMode = "FlatFace"
sketch5.AttachmentOffset = App.Placement(Vector(0, 0, 9.525), App.Rotation())
add_polygon(sketch5, [(-31.091614, 27.453792), (-31.091614, -30.126127), (-13.062258, -30.126127), (-13.062258, 27.453792)])
add_polygon(sketch5, [(13.062258, 27.453792), (13.062258, -30.126127), (31.091614, -30.126127), (31.091614, 27.453792)])
sketch5.addConstraint(Sketcher.Constraint("Vertical", 0))
sketch5.addConstraint(Sketcher.Constraint("Horizontal", 1))
sketch5.addConstraint(Sketcher.Constraint("Vertical", 2))
sketch5.addConstraint(Sketcher.Constraint("Horizontal", 3))
sketch5.addConstraint(Sketcher.Constraint("Vertical", 4))
sketch5.addConstraint(Sketcher.Constraint("Horizontal", 5))
sketch5.addConstraint(Sketcher.Constraint("Vertical", 6))
sketch5.addConstraint(Sketcher.Constraint("Horizontal", 7))
sketch5.addConstraint(Sketcher.Constraint("Symmetric", 1, 2, 4, 2, -2))
sketch5.addConstraint(Sketcher.Constraint("Symmetric", 3, 2, 6, 2, -2))
sketch5.addConstraint(Sketcher.Constraint("DistanceY", 0, 2, 0, 1, Q("57.579919 mm")))
sketch5.addConstraint(Sketcher.Constraint("DistanceX", 1, 1, 1, 2, Q("18.029356 mm")))
sketch5.addConstraint(Sketcher.Constraint("DistanceY", -1, 1, 2, 2, Q("27.453792 mm")))
sketch5.addConstraint(Sketcher.Constraint("DistanceX", 0, 2, 4, 2, Q("44.153871 mm")))
pocket4 = doc.addObject("PartDesign::Pocket", "Pocket003")
body.addObject(pocket4)
pocket4.Profile = sketch5
pocket4.Length = 9.525

doc.recompute()
